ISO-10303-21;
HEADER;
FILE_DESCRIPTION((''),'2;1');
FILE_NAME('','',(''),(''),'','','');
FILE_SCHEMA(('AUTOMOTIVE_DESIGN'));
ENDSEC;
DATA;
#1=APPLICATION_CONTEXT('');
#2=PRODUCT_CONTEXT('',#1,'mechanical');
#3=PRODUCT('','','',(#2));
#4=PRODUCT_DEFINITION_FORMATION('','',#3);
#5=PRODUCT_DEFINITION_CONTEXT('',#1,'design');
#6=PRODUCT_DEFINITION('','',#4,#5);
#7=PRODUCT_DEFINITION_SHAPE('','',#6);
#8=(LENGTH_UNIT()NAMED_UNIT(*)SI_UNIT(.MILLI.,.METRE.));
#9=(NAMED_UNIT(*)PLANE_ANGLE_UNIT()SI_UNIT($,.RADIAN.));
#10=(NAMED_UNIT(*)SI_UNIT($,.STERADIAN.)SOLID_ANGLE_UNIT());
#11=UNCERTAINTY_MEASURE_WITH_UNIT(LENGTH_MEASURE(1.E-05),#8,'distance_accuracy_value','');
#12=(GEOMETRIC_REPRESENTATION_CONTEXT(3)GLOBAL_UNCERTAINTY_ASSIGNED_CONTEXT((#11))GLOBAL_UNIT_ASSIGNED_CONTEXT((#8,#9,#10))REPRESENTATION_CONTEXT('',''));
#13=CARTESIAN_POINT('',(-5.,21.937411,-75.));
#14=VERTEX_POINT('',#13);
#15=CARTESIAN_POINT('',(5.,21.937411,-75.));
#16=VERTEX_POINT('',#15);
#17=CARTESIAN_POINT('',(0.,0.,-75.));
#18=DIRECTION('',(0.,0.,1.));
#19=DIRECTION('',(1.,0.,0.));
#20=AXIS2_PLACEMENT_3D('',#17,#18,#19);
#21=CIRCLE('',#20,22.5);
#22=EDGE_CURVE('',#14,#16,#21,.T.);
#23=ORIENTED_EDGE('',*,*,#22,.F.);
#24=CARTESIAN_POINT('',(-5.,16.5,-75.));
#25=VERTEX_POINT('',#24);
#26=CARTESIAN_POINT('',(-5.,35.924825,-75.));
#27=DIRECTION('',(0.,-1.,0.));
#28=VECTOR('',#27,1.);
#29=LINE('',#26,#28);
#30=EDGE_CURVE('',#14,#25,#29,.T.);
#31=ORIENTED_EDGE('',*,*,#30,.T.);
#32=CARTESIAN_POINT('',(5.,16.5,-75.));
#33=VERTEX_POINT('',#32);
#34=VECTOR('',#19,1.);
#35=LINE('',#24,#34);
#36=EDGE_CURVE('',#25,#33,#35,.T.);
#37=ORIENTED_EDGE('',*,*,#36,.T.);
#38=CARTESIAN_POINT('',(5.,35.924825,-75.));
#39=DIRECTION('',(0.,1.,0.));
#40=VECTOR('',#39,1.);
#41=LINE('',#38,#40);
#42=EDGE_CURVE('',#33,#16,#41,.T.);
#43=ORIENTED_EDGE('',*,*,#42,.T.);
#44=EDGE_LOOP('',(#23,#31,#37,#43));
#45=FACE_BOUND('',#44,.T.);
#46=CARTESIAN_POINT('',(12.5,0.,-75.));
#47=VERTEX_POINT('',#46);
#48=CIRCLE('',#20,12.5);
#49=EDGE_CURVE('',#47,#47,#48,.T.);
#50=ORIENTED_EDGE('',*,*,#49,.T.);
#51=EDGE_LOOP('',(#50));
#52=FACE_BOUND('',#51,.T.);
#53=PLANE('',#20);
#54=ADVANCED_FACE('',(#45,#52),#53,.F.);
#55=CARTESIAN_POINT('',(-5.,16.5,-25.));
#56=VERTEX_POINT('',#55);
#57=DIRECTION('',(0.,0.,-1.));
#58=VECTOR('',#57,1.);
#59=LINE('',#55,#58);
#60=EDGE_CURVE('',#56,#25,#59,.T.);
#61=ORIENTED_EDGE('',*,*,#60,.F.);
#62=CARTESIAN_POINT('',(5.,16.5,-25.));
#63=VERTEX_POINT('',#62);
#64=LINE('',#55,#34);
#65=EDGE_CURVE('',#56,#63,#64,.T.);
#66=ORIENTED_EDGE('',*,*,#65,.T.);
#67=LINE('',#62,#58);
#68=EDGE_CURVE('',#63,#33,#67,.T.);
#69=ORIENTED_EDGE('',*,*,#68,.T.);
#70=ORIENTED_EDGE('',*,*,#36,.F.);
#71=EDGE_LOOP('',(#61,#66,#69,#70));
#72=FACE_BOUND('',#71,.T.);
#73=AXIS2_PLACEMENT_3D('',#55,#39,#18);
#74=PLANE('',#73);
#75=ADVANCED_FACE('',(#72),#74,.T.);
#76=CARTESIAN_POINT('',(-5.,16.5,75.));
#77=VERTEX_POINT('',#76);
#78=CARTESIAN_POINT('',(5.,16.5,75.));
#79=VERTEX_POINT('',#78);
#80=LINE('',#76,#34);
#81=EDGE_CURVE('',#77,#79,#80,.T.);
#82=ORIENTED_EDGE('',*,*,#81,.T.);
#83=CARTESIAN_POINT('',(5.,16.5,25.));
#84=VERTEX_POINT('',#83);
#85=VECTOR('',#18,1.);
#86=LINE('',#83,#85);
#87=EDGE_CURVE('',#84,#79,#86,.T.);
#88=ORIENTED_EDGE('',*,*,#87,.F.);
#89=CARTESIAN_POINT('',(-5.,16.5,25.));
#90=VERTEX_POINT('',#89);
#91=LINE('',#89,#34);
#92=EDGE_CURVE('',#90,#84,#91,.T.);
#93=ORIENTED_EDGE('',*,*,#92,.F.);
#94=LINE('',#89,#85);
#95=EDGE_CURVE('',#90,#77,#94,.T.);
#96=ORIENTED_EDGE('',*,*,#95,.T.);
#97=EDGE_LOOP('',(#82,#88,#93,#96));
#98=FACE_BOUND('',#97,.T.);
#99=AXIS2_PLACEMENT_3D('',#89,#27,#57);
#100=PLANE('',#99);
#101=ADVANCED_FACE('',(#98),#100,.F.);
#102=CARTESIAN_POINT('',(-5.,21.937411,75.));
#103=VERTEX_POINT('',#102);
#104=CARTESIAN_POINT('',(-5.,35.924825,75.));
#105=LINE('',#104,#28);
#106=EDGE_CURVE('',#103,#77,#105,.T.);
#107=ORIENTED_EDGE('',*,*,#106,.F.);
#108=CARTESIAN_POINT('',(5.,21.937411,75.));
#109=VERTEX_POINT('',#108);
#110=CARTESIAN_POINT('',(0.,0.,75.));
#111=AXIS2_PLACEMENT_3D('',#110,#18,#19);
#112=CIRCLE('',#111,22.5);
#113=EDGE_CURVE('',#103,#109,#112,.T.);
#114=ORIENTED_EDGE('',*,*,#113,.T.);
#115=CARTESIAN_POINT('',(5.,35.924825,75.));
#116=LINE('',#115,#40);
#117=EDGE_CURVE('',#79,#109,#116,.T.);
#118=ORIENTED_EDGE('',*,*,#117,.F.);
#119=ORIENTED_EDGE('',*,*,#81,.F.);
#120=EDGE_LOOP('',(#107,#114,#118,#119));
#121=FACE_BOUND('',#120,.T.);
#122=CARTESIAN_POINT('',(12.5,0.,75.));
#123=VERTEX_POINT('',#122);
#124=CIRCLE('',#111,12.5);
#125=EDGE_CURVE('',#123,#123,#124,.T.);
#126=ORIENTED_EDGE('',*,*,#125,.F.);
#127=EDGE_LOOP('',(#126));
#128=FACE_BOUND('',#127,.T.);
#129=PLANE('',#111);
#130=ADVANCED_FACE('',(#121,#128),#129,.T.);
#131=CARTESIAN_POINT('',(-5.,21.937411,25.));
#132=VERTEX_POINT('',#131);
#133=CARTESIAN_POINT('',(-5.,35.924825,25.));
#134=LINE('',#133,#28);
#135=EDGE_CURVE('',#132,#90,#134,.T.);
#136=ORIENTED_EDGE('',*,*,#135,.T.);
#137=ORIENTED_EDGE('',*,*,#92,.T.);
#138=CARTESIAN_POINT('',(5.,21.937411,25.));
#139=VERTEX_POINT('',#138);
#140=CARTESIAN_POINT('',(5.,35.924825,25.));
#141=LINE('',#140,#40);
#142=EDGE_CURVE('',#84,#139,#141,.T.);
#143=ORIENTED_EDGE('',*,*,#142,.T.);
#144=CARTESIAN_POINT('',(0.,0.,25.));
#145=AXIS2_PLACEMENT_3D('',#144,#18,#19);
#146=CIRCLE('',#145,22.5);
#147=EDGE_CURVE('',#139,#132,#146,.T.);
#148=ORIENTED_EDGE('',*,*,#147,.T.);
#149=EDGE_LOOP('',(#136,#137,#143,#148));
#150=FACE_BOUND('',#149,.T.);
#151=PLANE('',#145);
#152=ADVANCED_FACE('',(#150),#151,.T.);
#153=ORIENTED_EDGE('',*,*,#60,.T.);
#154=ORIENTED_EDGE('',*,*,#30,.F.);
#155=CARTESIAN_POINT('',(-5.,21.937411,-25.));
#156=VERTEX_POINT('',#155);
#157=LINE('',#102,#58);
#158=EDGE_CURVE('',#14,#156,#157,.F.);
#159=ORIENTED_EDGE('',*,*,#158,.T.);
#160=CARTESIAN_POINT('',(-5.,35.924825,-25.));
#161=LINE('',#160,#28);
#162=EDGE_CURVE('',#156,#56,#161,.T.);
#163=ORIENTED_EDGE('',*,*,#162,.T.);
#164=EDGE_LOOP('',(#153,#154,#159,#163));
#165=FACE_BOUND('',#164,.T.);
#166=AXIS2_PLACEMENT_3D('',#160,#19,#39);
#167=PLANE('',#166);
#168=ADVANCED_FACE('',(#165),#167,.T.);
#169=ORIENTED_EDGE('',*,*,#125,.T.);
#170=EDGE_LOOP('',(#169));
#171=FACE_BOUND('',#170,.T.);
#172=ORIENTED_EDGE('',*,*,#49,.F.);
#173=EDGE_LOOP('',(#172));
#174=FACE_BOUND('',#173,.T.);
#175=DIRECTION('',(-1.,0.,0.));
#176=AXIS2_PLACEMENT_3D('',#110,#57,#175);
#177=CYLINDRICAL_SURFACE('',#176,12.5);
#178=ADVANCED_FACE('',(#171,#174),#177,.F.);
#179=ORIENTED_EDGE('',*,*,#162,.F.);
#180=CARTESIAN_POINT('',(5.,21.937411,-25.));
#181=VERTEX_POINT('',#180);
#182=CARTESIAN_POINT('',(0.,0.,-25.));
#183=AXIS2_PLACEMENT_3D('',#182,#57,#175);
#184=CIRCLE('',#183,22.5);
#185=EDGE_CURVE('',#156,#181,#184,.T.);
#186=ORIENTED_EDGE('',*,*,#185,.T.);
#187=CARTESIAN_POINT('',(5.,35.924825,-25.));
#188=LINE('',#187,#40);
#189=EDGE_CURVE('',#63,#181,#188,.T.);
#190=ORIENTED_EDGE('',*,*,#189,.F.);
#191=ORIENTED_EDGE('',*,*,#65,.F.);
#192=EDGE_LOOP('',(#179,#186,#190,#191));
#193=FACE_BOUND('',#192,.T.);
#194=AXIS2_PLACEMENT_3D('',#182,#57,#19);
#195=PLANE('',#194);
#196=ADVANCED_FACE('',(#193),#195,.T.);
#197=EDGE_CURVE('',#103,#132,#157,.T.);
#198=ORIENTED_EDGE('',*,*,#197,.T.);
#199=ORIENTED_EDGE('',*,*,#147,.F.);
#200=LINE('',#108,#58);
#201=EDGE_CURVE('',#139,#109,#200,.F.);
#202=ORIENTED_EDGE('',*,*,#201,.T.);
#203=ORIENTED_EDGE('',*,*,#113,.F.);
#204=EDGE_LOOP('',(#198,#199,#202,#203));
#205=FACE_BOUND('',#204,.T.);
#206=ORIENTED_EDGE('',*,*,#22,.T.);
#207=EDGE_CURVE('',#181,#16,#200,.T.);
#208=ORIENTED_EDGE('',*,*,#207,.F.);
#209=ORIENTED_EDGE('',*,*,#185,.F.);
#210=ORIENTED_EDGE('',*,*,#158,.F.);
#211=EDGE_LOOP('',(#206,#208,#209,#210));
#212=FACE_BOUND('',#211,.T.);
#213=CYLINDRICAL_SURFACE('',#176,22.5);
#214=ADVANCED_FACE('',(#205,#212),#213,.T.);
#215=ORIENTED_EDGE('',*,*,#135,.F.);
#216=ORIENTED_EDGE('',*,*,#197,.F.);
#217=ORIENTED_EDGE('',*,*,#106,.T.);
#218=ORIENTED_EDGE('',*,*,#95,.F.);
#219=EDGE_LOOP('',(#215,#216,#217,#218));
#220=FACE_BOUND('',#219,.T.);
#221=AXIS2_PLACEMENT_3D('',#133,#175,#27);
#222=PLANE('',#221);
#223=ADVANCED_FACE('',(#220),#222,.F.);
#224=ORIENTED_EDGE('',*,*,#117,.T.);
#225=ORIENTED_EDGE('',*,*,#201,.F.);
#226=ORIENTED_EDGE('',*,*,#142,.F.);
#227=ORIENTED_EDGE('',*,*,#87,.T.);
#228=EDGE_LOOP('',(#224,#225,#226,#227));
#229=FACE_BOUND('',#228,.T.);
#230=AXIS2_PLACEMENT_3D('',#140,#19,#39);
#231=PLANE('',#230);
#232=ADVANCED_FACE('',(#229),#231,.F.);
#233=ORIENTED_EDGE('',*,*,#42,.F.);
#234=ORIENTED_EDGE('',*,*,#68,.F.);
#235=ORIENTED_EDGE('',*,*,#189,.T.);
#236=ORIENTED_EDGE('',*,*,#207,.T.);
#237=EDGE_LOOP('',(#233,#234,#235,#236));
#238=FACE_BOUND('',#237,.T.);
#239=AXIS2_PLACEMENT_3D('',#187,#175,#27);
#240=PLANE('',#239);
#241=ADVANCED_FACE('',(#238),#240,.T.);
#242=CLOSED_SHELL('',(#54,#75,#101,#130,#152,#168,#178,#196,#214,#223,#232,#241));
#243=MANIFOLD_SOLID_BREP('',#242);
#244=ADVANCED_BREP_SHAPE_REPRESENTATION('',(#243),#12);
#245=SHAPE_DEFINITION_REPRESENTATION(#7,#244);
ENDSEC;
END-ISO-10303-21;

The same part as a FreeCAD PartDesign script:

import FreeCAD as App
import Part
import Sketcher

V = App.Vector
Q = App.Units.Quantity

doc = App.newDocument("Part")
body = doc.addObject("PartDesign::Body", "Body")

# Sketch on XY plane
sketch1 = doc.addObject("Sketcher::SketchObject", "Sketch")
body.addObject(sketch1)
sketch1.AttachmentSupport = (doc.XY_Plane, [""])
sketch1.MapMode = "FlatFace"
sketch1.addGeometry(Part.Circle(V(0, 0, 0), V(0, 0, 1), 22), False)
sketch1.addGeometry(Part.Circle(V(0, 0, 0), V(0, 0, 1), 12), False)
sketch1.addConstraint(Sketcher.Constraint("Coincident", 0, 3, -1, 1))
sketch1.addConstraint(Sketcher.Constraint("Coincident", 1, 3, -1, 1))
sketch1.addConstraint(Sketcher.Constraint("Diameter", 0, Q("45 mm")))
sketch1.addConstraint(Sketcher.Constraint("Diameter", 1, Q("25 mm")))
pad1 = doc.addObject("PartDesign::Pad", "Pad")
body.addObject(pad1)
pad1.Profile = sketch1
pad1.Length = 150
pad1.Midplane = True

# Sketch on XY plane
sketch2 = doc.addObject("Sketcher::SketchObject", "Sketch001")
body.addObject(sketch2)
sketch2.AttachmentSupport = (doc.XY_Plane, [""])
sketch2.MapMode = "FlatFace"
sketch2.AttachmentOffset = App.Placement(V(0, 0, 75), App.Rotation())
sketch2.addGeometry(Part.LineSegment(V(-5, 36, 0), V(-5, 16, 0)), False)
sketch2.addGeometry(Part.LineSegment(V(-5, 16, 0), V(5, 16, 0)), False)
sketch2.addGeometry(Part.LineSegment(V(5, 16, 0), V(5, 36, 0)), False)
sketch2.addGeometry(Part.LineSegment(V(5, 36, 0), V(-5, 36, 0)), False)
sketch2.addConstraint(Sketcher.Constraint("Coincident", 0, 2, 1, 1))
sketch2.addConstraint(Sketcher.Constraint("Coincident", 1, 2, 2, 1))
sketch2.addConstraint(Sketcher.Constraint("Coincident", 2, 2, 3, 1))
sketch2.addConstraint(Sketcher.Constraint("Coincident", 3, 2, 0, 1))
sketch2.addConstraint(Sketcher.Constraint("Vertical", 0))
sketch2.addConstraint(Sketcher.Constraint("Horizontal", 1))
sketch2.addConstraint(Sketcher.Constraint("Vertical", 2))
sketch2.addConstraint(Sketcher.Constraint("Horizontal", 3))
sketch2.addConstraint(Sketcher.Constraint("DistanceX", 1, 1, 1, 2, Q("10 mm")))
sketch2.addConstraint(Sketcher.Constraint("DistanceX", 0, 2, -1, 1, Q("5 mm")))
sketch2.addConstraint(Sketcher.Constraint("DistanceY", -1, 1, 0, 2, Q("16.5 mm")))
sketch2.addConstraint(Sketcher.Constraint("DistanceY", 0, 2, 0, 1, Q("19.424825 mm")))
pocket1 = doc.addObject("PartDesign::Pocket", "Pocket")
body.addObject(pocket1)
pocket1.Profile = sketch2
pocket1.Length = 50
doc.recompute()

mirrored = doc.addObject("PartDesign::Mirrored", "Mirrored")
body.addObject(mirrored)
mirrored.Originals = [pocket1]
mirrored.MirrorPlane = (doc.XY_Plane, [""])
body.Tip = mirrored

doc.recompute()
